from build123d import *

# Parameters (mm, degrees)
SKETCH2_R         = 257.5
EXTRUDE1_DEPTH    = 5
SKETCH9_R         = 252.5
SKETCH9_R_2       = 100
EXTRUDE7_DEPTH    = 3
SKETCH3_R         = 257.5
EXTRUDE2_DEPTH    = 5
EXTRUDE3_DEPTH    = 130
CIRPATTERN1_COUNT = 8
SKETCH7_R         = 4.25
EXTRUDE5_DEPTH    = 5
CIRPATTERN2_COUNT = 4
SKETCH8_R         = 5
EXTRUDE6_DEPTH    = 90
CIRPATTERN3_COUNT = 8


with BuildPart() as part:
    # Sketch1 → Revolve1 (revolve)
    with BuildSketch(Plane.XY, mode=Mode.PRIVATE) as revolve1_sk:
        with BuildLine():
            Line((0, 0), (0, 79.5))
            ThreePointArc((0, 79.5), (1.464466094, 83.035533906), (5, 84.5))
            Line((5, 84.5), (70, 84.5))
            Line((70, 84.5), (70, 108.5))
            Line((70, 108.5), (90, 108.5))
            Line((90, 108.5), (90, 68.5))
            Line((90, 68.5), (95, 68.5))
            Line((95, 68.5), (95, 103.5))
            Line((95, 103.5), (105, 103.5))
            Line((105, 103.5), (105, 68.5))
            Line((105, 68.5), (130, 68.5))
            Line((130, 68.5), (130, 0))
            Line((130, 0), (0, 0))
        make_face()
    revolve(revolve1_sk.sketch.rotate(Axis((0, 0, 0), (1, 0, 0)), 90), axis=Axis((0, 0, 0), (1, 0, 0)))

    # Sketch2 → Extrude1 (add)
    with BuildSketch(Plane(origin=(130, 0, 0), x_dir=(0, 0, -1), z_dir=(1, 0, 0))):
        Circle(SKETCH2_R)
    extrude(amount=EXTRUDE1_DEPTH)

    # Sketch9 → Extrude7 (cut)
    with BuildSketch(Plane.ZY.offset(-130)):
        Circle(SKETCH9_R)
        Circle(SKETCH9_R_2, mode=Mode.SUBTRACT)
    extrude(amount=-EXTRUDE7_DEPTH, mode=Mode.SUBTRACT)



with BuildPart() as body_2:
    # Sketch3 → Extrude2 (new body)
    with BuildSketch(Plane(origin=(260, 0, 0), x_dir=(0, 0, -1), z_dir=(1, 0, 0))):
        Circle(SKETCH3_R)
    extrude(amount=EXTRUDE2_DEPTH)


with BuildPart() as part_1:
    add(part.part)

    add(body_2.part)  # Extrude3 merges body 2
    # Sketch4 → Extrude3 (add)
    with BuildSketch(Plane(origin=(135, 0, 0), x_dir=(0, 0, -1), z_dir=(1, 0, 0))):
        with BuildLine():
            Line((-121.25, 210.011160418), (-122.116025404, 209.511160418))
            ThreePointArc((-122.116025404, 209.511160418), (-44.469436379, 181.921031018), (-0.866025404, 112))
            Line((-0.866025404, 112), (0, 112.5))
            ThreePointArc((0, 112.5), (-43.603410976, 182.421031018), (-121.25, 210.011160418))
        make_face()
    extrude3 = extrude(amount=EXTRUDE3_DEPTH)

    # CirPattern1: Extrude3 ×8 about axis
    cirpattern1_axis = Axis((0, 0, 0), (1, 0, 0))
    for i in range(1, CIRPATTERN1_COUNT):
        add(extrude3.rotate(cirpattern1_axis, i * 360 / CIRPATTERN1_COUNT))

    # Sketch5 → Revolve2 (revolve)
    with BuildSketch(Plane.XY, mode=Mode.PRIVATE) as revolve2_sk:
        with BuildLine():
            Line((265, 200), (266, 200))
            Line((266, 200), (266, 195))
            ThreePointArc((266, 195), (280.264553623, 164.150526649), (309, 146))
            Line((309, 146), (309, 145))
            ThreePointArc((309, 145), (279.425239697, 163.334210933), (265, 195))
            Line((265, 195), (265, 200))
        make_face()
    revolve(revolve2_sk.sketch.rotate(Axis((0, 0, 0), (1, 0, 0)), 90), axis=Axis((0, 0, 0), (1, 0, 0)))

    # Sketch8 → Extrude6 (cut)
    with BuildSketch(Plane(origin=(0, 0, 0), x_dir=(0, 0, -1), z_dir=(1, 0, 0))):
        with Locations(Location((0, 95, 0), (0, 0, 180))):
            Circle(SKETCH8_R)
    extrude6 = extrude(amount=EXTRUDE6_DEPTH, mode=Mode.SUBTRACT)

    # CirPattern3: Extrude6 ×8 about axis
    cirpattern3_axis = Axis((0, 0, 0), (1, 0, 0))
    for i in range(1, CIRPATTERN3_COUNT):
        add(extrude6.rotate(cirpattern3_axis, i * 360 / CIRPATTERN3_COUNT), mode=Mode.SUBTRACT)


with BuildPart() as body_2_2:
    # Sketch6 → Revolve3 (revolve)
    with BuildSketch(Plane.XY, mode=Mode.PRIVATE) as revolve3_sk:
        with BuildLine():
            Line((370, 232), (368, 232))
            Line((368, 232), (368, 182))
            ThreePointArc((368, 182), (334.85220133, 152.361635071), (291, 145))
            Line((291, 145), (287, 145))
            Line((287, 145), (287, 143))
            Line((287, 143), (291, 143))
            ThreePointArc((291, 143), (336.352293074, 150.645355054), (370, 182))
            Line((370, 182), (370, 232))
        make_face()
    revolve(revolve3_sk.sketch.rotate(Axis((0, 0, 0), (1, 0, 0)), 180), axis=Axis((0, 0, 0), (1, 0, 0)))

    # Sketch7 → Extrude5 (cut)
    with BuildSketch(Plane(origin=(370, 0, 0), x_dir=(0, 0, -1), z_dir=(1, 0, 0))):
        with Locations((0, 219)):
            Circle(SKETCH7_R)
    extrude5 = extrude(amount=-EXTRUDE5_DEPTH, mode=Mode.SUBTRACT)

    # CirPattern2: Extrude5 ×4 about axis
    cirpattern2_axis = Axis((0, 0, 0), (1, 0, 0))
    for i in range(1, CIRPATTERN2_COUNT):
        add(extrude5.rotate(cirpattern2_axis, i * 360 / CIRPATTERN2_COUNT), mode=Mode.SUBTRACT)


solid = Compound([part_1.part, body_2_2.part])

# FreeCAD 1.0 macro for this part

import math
import FreeCAD as App
import Part
import Sketcher
from FreeCAD import Vector
Q = App.Units.Quantity

doc = App.newDocument("Part")
params = doc.addObject("Spreadsheet::Sheet", "Params")
for row, (alias, value) in enumerate([
    ("sketch1_radius", "5 mm"),
    ("sketch1_width", "130 mm"),
    ("sketch1_width2", "25 mm"),
    ("sketch1_width3", "10 mm"),
    ("sketch1_width4", "5 mm"),
    ("revolution_angle", "360 deg"),
    ("sketch2_diameter", "515 mm"),
    ("pad1_length", "5 mm"),
    ("sketch3_diameter", "505 mm"),
    ("sketch3_diameter2", "200 mm"),
    ("pocket1_length", "3 mm"),
    ("sketch4_diameter", "515 mm"),
    ("pad2_length", "5 mm"),
    ("sketch5_radius", "125 mm"),
    ("sketch5_length", "1 mm"),
    ("pad3_length", "130 mm"),
    ("sketch6_radius", "60 mm"),
    ("sketch6_width", "1 mm"),
    ("sketch6_height", "5 mm"),
    ("revolution2_angle", "360 deg"),
    ("sketch7_diameter", "10 mm"),
    ("pocket2_length", "90 mm"),
    ("sketch8_radius", "80 mm"),
    ("sketch8_width", "2 mm"),
    ("sketch8_width2", "4 mm"),
    ("sketch8_height", "50 mm"),
    ("revolution3_angle", "360 deg"),
    ("sketch9_diameter", "8.5 mm"),
    ("pocket3_length", "5 mm"),
], start=1):
    params.set(f"A{row}", alias)
    params.set(f"B{row}", "=" + value)
    params.setAlias(f"B{row}", alias)

body = doc.addObject("PartDesign::Body", "Body")

sketch1 = body.newObject("Sketcher::SketchObject", "Sketch")
sketch1.AttachmentSupport = (doc.getObject("XY_Plane"), [""])
sketch1.MapMode = "FlatFace"
sketch1.addGeometry(Part.LineSegment(Vector(0, 80, 0), Vector(0, 0, 0)), False)
sketch1.addGeometry(Part.LineSegment(Vector(0, 0, 0), Vector(130, 0, 0)), False)
sketch1.addGeometry(Part.LineSegment(Vector(130, 0, 0), Vector(130, 68, 0)), False)
sketch1.addGeometry(Part.LineSegment(Vector(130, 68, 0), Vector(105, 68, 0)), False)
sketch1.addGeometry(Part.LineSegment(Vector(105, 68, 0), Vector(105, 104, 0)), False)
sketch1.addGeometry(Part.LineSegment(Vector(105, 104, 0), Vector(95, 104, 0)), False)
sketch1.addGeometry(Part.LineSegment(Vector(95, 104, 0), Vector(95, 68, 0)), False)
sketch1.addGeometry(Part.LineSegment(Vector(95, 68, 0), Vector(90, 68, 0)), False)
sketch1.addGeometry(Part.LineSegment(Vector(90, 68, 0), Vector(90, 108, 0)), False)
sketch1.addGeometry(Part.LineSegment(Vector(90, 108, 0), Vector(70, 108, 0)), False)
sketch1.addGeometry(Part.LineSegment(Vector(70, 108, 0), Vector(70, 84, 0)), False)
sketch1.addGeometry(Part.LineSegment(Vector(70, 84, 0), Vector(5, 84, 0)), False)
sketch1.addGeometry(Part.ArcOfCircle(Part.Circle(Vector(5, 80, 0), Vector(0, 0, 1), 5), math.radians(90), math.radians(180)), False)
sketch1.addConstraint(Sketcher.Constraint("Coincident", 0, 2, 1, 1))
sketch1.addConstraint(Sketcher.Constraint("Coincident", 1, 2, 2, 1))
sketch1.addConstraint(Sketcher.Constraint("Coincident", 2, 2, 3, 1))
sketch1.addConstraint(Sketcher.Constraint("Coincident", 3, 2, 4, 1))
sketch1.addConstraint(Sketcher.Constraint("Coincident", 4, 2, 5, 1))
sketch1.addConstraint(Sketcher.Constraint("Coincident", 5, 2, 6, 1))
sketch1.addConstraint(Sketcher.Constraint("Coincident", 6, 2, 7, 1))
sketch1.addConstraint(Sketcher.Constraint("Coincident", 7, 2, 8, 1))
sketch1.addConstraint(Sketcher.Constraint("Coincident", 8, 2, 9, 1))
sketch1.addConstraint(Sketcher.Constraint("Coincident", 9, 2, 10, 1))
sketch1.addConstraint(Sketcher.Constraint("Coincident", 10, 2, 11, 1))
sketch1.addConstraint(Sketcher.Constraint("Tangent", 11, 2, 12, 1))
sketch1.addConstraint(Sketcher.Constraint("Tangent", 12, 2, 0, 1))
sketch1.addConstraint(Sketcher.Constraint("Vertical", 0))
sketch1.addConstraint(Sketcher.Constraint("Horizontal", 1))
sketch1.addConstraint(Sketcher.Constraint("Vertical", 2))
sketch1.addConstraint(Sketcher.Constraint("Horizontal", 3))
sketch1.addConstraint(Sketcher.Constraint("Vertical", 4))
sketch1.addConstraint(Sketcher.Constraint("Horizontal", 5))
sketch1.addConstraint(Sketcher.Constraint("Vertical", 6))
sketch1.addConstraint(Sketcher.Constraint("Horizontal", 7))
sketch1.addConstraint(Sketcher.Constraint("Vertical", 8))
sketch1.addConstraint(Sketcher.Constraint("Horizontal", 9))
sketch1.addConstraint(Sketcher.Constraint("Vertical", 10))
sketch1.addConstraint(Sketcher.Constraint("Horizontal", 11))
sketch1.addConstraint(Sketcher.Constraint("Coincident", 0, 2, -1, 1))
sketch1.addConstraint(Sketcher.Constraint("Horizontal", 3, 2, 6, 2))
sketch1.addConstraint(Sketcher.Constraint("Radius", 12, Q("5 mm")))
sketch1.addConstraint(Sketcher.Constraint("DistanceX", 1, 1, 1, 2, Q("130 mm")))
sketch1.addConstraint(Sketcher.Constraint("DistanceX", 3, 2, 3, 1, Q("25 mm")))
sketch1.addConstraint(Sketcher.Constraint("DistanceX", 5, 2, 5, 1, Q("10 mm")))
sketch1.addConstraint(Sketcher.Constraint("DistanceX", 7, 2, 7, 1, Q("5 mm")))
sketch1.addConstraint(Sketcher.Constraint("DistanceX", 9, 2, 9, 1, Q("20 mm")))
sketch1.addConstraint(Sketcher.Constraint("DistanceY", 4, 1, 4, 2, Q("35 mm")))
sketch1.addConstraint(Sketcher.Constraint("DistanceY", 8, 1, 8, 2, Q("40 mm")))
sketch1.addConstraint(Sketcher.Constraint("DistanceY", 10, 2, 10, 1, Q("24 mm")))
sketch1.addConstraint(Sketcher.Constraint("DistanceY", 0, 2, 0, 1, Q("79.5 mm")))
sketch1.setExpression("Constraints[27]", "Params.sketch1_radius")
sketch1.setExpression("Constraints[28]", "Params.sketch1_width")
sketch1.setExpression("Constraints[29]", "Params.sketch1_width2")
sketch1.setExpression("Constraints[30]", "Params.sketch1_width3")
sketch1.setExpression("Constraints[31]", "Params.sketch1_width4")
revolution = body.newObject("PartDesign::Revolution", "Revolution")
revolution.Profile = sketch1
revolution.ReferenceAxis = (sketch1, ["H_Axis"])
revolution.setExpression("Angle", "Params.revolution_angle")

sketch2 = body.newObject("Sketcher::SketchObject", "Sketch001")
sketch2.AttachmentSupport = (doc.getObject("YZ_Plane"), [""])
sketch2.MapMode = "FlatFace"
sketch2.AttachmentOffset = App.Placement(Vector(0, 0, 130), App.Rotation())
sketch2.addGeometry(Part.Circle(Vector(0, 0, 0), Vector(0, 0, 1), 258), False)
sketch2.addConstraint(Sketcher.Constraint("Coincident", 0, 3, -1, 1))
sketch2.addConstraint(Sketcher.Constraint("Diameter", 0, Q("515 mm")))
sketch2.setExpression("Constraints[1]", "Params.sketch2_diameter")
pad1 = body.newObject("PartDesign::Pad", "Pad")
pad1.Profile = sketch2
pad1.setExpression("Length", "Params.pad1_length")

sketch3 = body.newObject("Sketcher::SketchObject", "Sketch002")
sketch3.AttachmentSupport = (doc.getObject("YZ_Plane"), [""])
sketch3.MapMode = "FlatFace"
sketch3.AttachmentOffset = App.Placement(Vector(0, 0, 130), App.Rotation())
sketch3.addGeometry(Part.Circle(Vector(0, 0, 0), Vector(0, 0, 1), 252), False)
sketch3.addGeometry(Part.Circle(Vector(0, 0, 0), Vector(0, 0, 1), 100), False)
sketch3.addConstraint(Sketcher.Constraint("Coincident", 0, 3, -1, 1))
sketch3.addConstraint(Sketcher.Constraint("Coincident", 1, 3, -1, 1))
sketch3.addConstraint(Sketcher.Constraint("Diameter", 0, Q("505 mm")))
sketch3.addConstraint(Sketcher.Constraint("Diameter", 1, Q("200 mm")))
sketch3.setExpression("Constraints[2]", "Params.sketch3_diameter")
sketch3.setExpression("Constraints[3]", "Params.sketch3_diameter2")
pocket1 = body.newObject("PartDesign::Pocket", "Pocket")
pocket1.Profile = sketch3
pocket1.setExpression("Length", "Params.pocket1_length")
pocket1.Reversed = True
body2 = doc.addObject("PartDesign::Body", "Body001")

sketch4 = body2.newObject("Sketcher::SketchObject", "Sketch003")
sketch4.AttachmentSupport = (doc.getObject("YZ_Plane001"), [""])
sketch4.MapMode = "FlatFace"
sketch4.AttachmentOffset = App.Placement(Vector(0, 0, 260), App.Rotation())
sketch4.addGeometry(Part.Circle(Vector(0, 0, 0), Vector(0, 0, 1), 258), False)
sketch4.addConstraint(Sketcher.Constraint("Coincident", 0, 3, -1, 1))
sketch4.addConstraint(Sketcher.Constraint("Diameter", 0, Q("515 mm")))
sketch4.setExpression("Constraints[1]", "Params.sketch4_diameter")
pad2 = body2.newObject("PartDesign::Pad", "Pad001")
pad2.Profile = sketch4
pad2.setExpression("Length", "Params.pad2_length")
body.AllowCompound = True
doc.recompute()

boolean = body.newObject("PartDesign::Boolean", "Boolean")
boolean.Type = "Fuse"
boolean.addObjects([body2])

sketch5 = body.newObject("Sketcher::SketchObject", "Sketch004")
sketch5.AttachmentSupport = (doc.getObject("YZ_Plane"), [""])
sketch5.MapMode = "FlatFace"
sketch5.AttachmentOffset = App.Placement(Vector(0, 0, 135), App.Rotation())
sketch5.addGeometry(Part.LineSegment(Vector(210, 121.2, 0), Vector(209.5, 122.1, 0)), False)
sketch5.addGeometry(Part.ArcOfCircle(Part.Circle(Vector(84.5, 122.8, 0), Vector(0, 0, 1), 125), math.radians(-77), math.radians(0)), False)
sketch5.addGeometry(Part.LineSegment(Vector(112, 0.9, 0), Vector(112.5, 0, 0)), False)
sketch5.addGeometry(Part.ArcOfCircle(Part.Circle(Vector(85, 121.9, 0), Vector(0, 0, 1), 125), math.radians(-77), math.radians(0)), False)
sketch5.addConstraint(Sketcher.Constraint("Coincident", 0, 2, 1, 2))
sketch5.addConstraint(Sketcher.Constraint("Coincident", 1, 1, 2, 1))
sketch5.addConstraint(Sketcher.Constraint("Coincident", 2, 2, 3, 1))
sketch5.addConstraint(Sketcher.Constraint("Coincident", 3, 2, 0, 1))
sketch5.addConstraint(Sketcher.Constraint("Equal", 1, 3))
sketch5.addConstraint(Sketcher.Constraint("PointOnObject", 2, 2, -1))
sketch5.addConstraint(Sketcher.Constraint("Parallel", 0, 2))
sketch5.addConstraint(Sketcher.Constraint("Equal", 0, 2))
sketch5.addConstraint(Sketcher.Constraint("Radius", 1, Q("125 mm")))
sketch5.addConstraint(Sketcher.Constraint("Angle", 0, Q("120 deg")))
sketch5.addConstraint(Sketcher.Constraint("Distance", 0, Q("1 mm")))
sketch5.addConstraint(Sketcher.Constraint("DistanceX", -1, 1, 1, 1, Q("112 mm")))
sketch5.addConstraint(Sketcher.Constraint("DistanceY", -1, 1, 3, 2, Q("121.25 mm")))
sketch5.addConstraint(Sketcher.Constraint("DistanceY", -1, 1, 3, 3, Q("121.94043 mm")))
sketch5.setExpression("Constraints[8]", "Params.sketch5_radius")
sketch5.setExpression("Constraints[10]", "Params.sketch5_length")
pad3 = body.newObject("PartDesign::Pad", "Pad002")
pad3.Profile = sketch5
pad3.setExpression("Length", "Params.pad3_length")
doc.recompute()

polarpattern = body.newObject("PartDesign::PolarPattern", "PolarPattern")
polarpattern.Originals = [pad3]
polarpattern.Axis = (doc.getObject("X_Axis"), [""])
polarpattern.Angle = 360
polarpattern.Occurrences = 8
body.Tip = polarpattern

sketch6 = body.newObject("Sketcher::SketchObject", "Sketch005")
sketch6.AttachmentSupport = (doc.getObject("XY_Plane"), [""])
sketch6.MapMode = "FlatFace"
sketch6.addGeometry(Part.LineSegment(Vector(266, 200, 0), Vector(265, 200, 0)), False)
sketch6.addGeometry(Part.LineSegment(Vector(265, 200, 0), Vector(265, 195, 0)), False)
sketch6.addGeometry(Part.ArcOfCircle(Part.Circle(Vector(324.5, 203, 0), Vector(0, 0, 1), 60), math.radians(-172), math.radians(-105)), False)
sketch6.addGeometry(Part.LineSegment(Vector(309, 145, 0), Vector(309, 146, 0)), False)
sketch6.addGeometry(Part.ArcOfCircle(Part.Circle(Vector(325.4, 203.7, 0), Vector(0, 0, 1), 60), math.radians(-172), math.radians(-106)), False)
sketch6.addGeometry(Part.LineSegment(Vector(266, 195, 0), Vector(266, 200, 0)), False)
sketch6.addConstraint(Sketcher.Constraint("Coincident", 0, 2, 1, 1))
sketch6.addConstraint(Sketcher.Constraint("Coincident", 1, 2, 2, 1))
sketch6.addConstraint(Sketcher.Constraint("Coincident", 2, 2, 3, 1))
sketch6.addConstraint(Sketcher.Constraint("Coincident", 3, 2, 4, 2))
sketch6.addConstraint(Sketcher.Constraint("Coincident", 4, 1, 5, 1))
sketch6.addConstraint(Sketcher.Constraint("Coincident", 5, 2, 0, 1))
sketch6.addConstraint(Sketcher.Constraint("Horizontal", 0))
sketch6.addConstraint(Sketcher.Constraint("Vertical", 1))
sketch6.addConstraint(Sketcher.Constraint("Vertical", 3))
sketch6.addConstraint(Sketcher.Constraint("Vertical", 5))
sketch6.addConstraint(Sketcher.Constraint("Equal", 2, 4))
sketch6.addConstraint(Sketcher.Constraint("Horizontal", 1, 2, 4, 1))
sketch6.addConstraint(Sketcher.Constraint("Equal", 0, 3))
sketch6.addConstraint(Sketcher.Constraint("Radius", 2, Q("60 mm")))
sketch6.addConstraint(Sketcher.Constraint("DistanceX", 0, 2, 0, 1, Q("1 mm")))
sketch6.addConstraint(Sketcher.Constraint("DistanceY", 1, 2, 1, 1, Q("5 mm")))
sketch6.addConstraint(Sketcher.Constraint("DistanceX", -1, 1, 0, 2, Q("265 mm")))
sketch6.addConstraint(Sketcher.Constraint("DistanceY", -1, 1, 0, 2, Q("200 mm")))
sketch6.addConstraint(Sketcher.Constraint("DistanceX", -1, 1, 2, 2, Q("309 mm")))
sketch6.addConstraint(Sketcher.Constraint("DistanceY", -1, 1, 2, 2, Q("145 mm")))
sketch6.setExpression("Constraints[13]", "Params.sketch6_radius")
sketch6.setExpression("Constraints[14]", "Params.sketch6_width")
sketch6.setExpression("Constraints[15]", "Params.sketch6_height")
revolution2 = body.newObject("PartDesign::Revolution", "Revolution001")
revolution2.Profile = sketch6
revolution2.ReferenceAxis = (sketch6, ["H_Axis"])
revolution2.setExpression("Angle", "Params.revolution2_angle")

sketch7 = body.newObject("Sketcher::SketchObject", "Sketch006")
sketch7.AttachmentSupport = (doc.getObject("YZ_Plane"), [""])
sketch7.MapMode = "FlatFace"
sketch7.addGeometry(Part.Circle(Vector(95, 0, 0), Vector(0, 0, 1), 5), False)
sketch7.addConstraint(Sketcher.Constraint("PointOnObject", 0, 3, -1))
sketch7.addConstraint(Sketcher.Constraint("Diameter", 0, Q("10 mm")))
sketch7.addConstraint(Sketcher.Constraint("DistanceX", -1, 1, 0, 3, Q("95 mm")))
sketch7.setExpression("Constraints[1]", "Params.sketch7_diameter")
pocket2 = body.newObject("PartDesign::Pocket", "Pocket001")
pocket2.Profile = sketch7
pocket2.setExpression("Length", "Params.pocket2_length")
pocket2.Reversed = True
doc.recompute()

polarpattern2 = body.newObject("PartDesign::PolarPattern", "PolarPattern001")
polarpattern2.Originals = [pocket2]
polarpattern2.Axis = (doc.getObject("X_Axis"), [""])
polarpattern2.Angle = 360
polarpattern2.Occurrences = 8
body.Tip = polarpattern2
body3 = doc.addObject("PartDesign::Body", "Body002")

sketch8 = body3.newObject("Sketcher::SketchObject", "Sketch007")
sketch8.AttachmentSupport = (doc.getObject("XY_Plane002"), [""])
sketch8.MapMode = "FlatFace"
sketch8.addGeometry(Part.LineSegment(Vector(370, 232, 0), Vector(368, 232, 0)), False)
sketch8.addGeometry(Part.LineSegment(Vector(368, 232, 0), Vector(368, 182, 0)), False)
sketch8.addGeometry(Part.ArcOfCircle(Part.Circle(Vector(300.2, 224.5, 0), Vector(0, 0, 1), 80), math.radians(-97), math.radians(-32)), False)
sketch8.addGeometry(Part.LineSegment(Vector(291, 145, 0), Vector(287, 145, 0)), False)
sketch8.addGeometry(Part.LineSegment(Vector(287, 145, 0), Vector(287, 143, 0)), False)
sketch8.addGeometry(Part.LineSegment(Vector(287, 143, 0), Vector(291, 143, 0)), False)
sketch8.addGeometry(Part.ArcOfCircle(Part.Circle(Vector(300.9, 222.4, 0), Vector(0, 0, 1), 80), math.radians(-97), math.radians(-30)), False)
sketch8.addGeometry(Part.LineSegment(Vector(370, 182, 0), Vector(370, 232, 0)), False)
sketch8.addConstraint(Sketcher.Constraint("Coincident", 0, 2, 1, 1))
sketch8.addConstraint(Sketcher.Constraint("Coincident", 1, 2, 2, 2))
sketch8.addConstraint(Sketcher.Constraint("Coincident", 2, 1, 3, 1))
sketch8.addConstraint(Sketcher.Constraint("Coincident", 3, 2, 4, 1))
sketch8.addConstraint(Sketcher.Constraint("Coincident", 4, 2, 5, 1))
sketch8.addConstraint(Sketcher.Constraint("Coincident", 5, 2, 6, 1))
sketch8.addConstraint(Sketcher.Constraint("Coincident", 6, 2, 7, 1))
sketch8.addConstraint(Sketcher.Constraint("Coincident", 7, 2, 0, 1))
sketch8.addConstraint(Sketcher.Constraint("Horizontal", 0))
sketch8.addConstraint(Sketcher.Constraint("Vertical", 1))
sketch8.addConstraint(Sketcher.Constraint("Horizontal", 3))
sketch8.addConstraint(Sketcher.Constraint("Vertical", 4))
sketch8.addConstraint(Sketcher.Constraint("Horizontal", 5))
sketch8.addConstraint(Sketcher.Constraint("Vertical", 7))
sketch8.addConstraint(Sketcher.Constraint("Equal", 2, 6))
sketch8.addConstraint(Sketcher.Constraint("Horizontal", 1, 2, 6, 2))
sketch8.addConstraint(Sketcher.Constraint("Vertical", 2, 1, 5, 2))
sketch8.addConstraint(Sketcher.Constraint("Equal", 0, 4))
sketch8.addConstraint(Sketcher.Constraint("Radius", 2, Q("80 mm")))
sketch8.addConstraint(Sketcher.Constraint("DistanceX", 0, 2, 0, 1, Q("2 mm")))
sketch8.addConstraint(Sketcher.Constraint("DistanceX", 3, 2, 3, 1, Q("4 mm")))
sketch8.addConstraint(Sketcher.Constraint("DistanceY", 1, 2, 1, 1, Q("50 mm")))
sketch8.addConstraint(Sketcher.Constraint("DistanceX", -1, 1, 0, 2, Q("368 mm")))
sketch8.addConstraint(Sketcher.Constraint("DistanceY", -1, 1, 0, 2, Q("232 mm")))
sketch8.addConstraint(Sketcher.Constraint("DistanceX", -1, 1, 2, 1, Q("291 mm")))
sketch8.addConstraint(Sketcher.Constraint("DistanceY", -1, 1, 2, 1, Q("145 mm")))
sketch8.setExpression("Constraints[18]", "Params.sketch8_radius")
sketch8.setExpression("Constraints[19]", "Params.sketch8_width")
sketch8.setExpression("Constraints[20]", "Params.sketch8_width2")
sketch8.setExpression("Constraints[21]", "Params.sketch8_height")
revolution3 = body3.newObject("PartDesign::Revolution", "Revolution002")
revolution3.Profile = sketch8
revolution3.ReferenceAxis = (sketch8, ["H_Axis"])
revolution3.setExpression("Angle", "Params.revolution3_angle")

sketch9 = body3.newObject("Sketcher::SketchObject", "Sketch008")
sketch9.AttachmentSupport = (doc.getObject("YZ_Plane002"), [""])
sketch9.MapMode = "FlatFace"
sketch9.AttachmentOffset = App.Placement(Vector(0, 0, 370), App.Rotation())
sketch9.addGeometry(Part.Circle(Vector(219, 0, 0), Vector(0, 0, 1), 4.2), False)
sketch9.addConstraint(Sketcher.Constraint("PointOnObject", 0, 3, -1))
sketch9.addConstraint(Sketcher.Constraint("Diameter", 0, Q("8.5 mm")))
sketch9.addConstraint(Sketcher.Constraint("DistanceX", -1, 1, 0, 3, Q("219 mm")))
sketch9.setExpression("Constraints[1]", "Params.sketch9_diameter")
pocket3 = body3.newObject("PartDesign::Pocket", "Pocket002")
pocket3.Profile = sketch9
pocket3.setExpression("Length", "Params.pocket3_length")
doc.recompute()

polarpattern3 = body3.newObject("PartDesign::PolarPattern", "PolarPattern002")
polarpattern3.Originals = [pocket3]
polarpattern3.Axis = (doc.getObject("X_Axis002"), [""])
polarpattern3.Angle = 360
polarpattern3.Occurrences = 4
body3.Tip = polarpattern3

doc.recompute()
